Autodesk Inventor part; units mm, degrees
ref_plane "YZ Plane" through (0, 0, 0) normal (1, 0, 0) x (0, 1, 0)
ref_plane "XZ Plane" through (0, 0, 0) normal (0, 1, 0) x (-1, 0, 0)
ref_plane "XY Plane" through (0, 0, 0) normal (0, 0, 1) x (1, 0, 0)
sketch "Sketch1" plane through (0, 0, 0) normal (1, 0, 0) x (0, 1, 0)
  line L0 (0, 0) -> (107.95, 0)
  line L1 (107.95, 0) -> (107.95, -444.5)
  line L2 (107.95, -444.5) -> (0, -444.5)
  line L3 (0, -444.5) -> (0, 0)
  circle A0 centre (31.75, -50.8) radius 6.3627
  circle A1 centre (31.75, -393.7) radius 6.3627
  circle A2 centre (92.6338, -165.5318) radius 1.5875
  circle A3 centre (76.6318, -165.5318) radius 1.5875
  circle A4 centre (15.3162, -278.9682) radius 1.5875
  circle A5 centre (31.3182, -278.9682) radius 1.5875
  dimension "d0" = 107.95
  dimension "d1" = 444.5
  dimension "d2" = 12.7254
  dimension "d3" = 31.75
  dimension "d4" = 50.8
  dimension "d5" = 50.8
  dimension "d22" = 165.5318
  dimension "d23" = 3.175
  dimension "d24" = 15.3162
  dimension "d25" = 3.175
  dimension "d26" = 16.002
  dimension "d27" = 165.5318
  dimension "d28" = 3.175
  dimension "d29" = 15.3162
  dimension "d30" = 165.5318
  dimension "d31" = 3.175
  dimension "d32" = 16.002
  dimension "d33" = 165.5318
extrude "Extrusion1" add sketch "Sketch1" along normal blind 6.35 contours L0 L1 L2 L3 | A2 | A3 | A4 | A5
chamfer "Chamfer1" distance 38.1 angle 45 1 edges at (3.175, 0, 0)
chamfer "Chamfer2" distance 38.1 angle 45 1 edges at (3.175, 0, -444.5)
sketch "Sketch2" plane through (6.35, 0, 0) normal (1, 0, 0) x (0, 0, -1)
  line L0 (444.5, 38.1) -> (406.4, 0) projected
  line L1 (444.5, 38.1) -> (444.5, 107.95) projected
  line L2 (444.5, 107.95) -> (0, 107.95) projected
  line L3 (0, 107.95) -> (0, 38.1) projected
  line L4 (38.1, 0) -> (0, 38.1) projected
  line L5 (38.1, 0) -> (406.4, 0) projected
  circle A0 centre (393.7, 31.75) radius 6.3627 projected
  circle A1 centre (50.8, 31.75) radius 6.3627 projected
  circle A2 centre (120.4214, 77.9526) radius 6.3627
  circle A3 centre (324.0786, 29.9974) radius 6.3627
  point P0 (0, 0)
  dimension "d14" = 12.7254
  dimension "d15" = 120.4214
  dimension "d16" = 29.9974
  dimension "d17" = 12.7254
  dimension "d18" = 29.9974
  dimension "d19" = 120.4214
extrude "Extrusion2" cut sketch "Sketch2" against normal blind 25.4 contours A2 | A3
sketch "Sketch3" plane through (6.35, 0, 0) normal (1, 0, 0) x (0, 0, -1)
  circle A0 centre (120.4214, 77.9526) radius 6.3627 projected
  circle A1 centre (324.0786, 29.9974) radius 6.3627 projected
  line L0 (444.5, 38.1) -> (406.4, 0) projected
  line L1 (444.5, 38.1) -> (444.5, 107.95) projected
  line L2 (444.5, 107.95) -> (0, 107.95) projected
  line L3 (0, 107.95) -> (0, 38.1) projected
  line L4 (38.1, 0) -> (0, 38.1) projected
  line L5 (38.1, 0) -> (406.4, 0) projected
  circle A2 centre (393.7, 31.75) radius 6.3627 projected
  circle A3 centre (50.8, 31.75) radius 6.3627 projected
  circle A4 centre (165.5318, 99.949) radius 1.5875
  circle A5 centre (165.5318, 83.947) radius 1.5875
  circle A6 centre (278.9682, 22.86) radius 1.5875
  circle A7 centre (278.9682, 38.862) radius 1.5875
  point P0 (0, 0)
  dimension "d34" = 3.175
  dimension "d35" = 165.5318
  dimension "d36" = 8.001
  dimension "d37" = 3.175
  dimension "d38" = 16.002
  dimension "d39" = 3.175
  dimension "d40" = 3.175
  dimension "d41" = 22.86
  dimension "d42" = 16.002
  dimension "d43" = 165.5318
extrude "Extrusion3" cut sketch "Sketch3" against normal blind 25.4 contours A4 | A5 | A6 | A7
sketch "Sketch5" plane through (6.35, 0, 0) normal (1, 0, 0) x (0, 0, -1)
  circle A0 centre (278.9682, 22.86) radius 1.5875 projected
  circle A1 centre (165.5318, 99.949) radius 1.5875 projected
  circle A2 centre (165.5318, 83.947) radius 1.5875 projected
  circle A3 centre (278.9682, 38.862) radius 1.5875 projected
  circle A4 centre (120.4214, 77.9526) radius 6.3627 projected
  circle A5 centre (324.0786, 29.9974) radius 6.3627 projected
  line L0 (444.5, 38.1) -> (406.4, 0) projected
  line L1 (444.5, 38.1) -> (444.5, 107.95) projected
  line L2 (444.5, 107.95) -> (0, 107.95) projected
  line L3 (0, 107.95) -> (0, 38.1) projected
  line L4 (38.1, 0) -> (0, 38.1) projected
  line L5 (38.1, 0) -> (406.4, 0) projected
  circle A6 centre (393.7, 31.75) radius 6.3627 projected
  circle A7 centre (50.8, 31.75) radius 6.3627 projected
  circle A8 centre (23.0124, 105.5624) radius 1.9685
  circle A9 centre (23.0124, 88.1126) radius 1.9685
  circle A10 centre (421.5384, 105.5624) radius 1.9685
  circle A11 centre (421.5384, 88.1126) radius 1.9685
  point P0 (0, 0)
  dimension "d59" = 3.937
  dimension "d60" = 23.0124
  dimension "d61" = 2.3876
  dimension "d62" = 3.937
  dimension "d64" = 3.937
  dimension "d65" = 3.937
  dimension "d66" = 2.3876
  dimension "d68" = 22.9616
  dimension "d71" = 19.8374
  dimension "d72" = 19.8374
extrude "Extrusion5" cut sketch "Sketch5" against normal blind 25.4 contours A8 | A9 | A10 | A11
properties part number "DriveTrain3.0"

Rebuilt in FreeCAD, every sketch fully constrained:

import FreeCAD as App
import Part
import Sketcher
from FreeCAD import Vector
Q = App.Units.Quantity


def edges_at(feature, points):
    """Names of the edges that pass closest to the given points."""
    edges = feature.Shape.Edges
    near = lambda p: min(range(len(edges)), key=lambda i: edges[i].distToShape(Part.Vertex(*p))[0])
    return sorted({f"Edge{near(p) + 1}" for p in points})


def add_polygon(sketch, points):
    """Adds a closed chain of lines whose ends are joined by coincident constraints."""
    first, n = sketch.GeometryCount, len(points)
    for a, b in zip(points, points[1:] + points[:1]):
        sketch.addGeometry(Part.LineSegment(App.Vector(*a, 0), App.Vector(*b, 0)), False)
    for i in range(n):
        sketch.addConstraint(Sketcher.Constraint("Coincident", first + i, 2, first + (i + 1) % n, 1))

doc = App.newDocument("Part")
body = doc.addObject("PartDesign::Body", "Body")

# Sketch on YZ plane
sketch1 = body.newObject("Sketcher::SketchObject", "Sketch")
sketch1.AttachmentSupport = (doc.getObject("YZ_Plane"), [""])
sketch1.MapMode = "FlatFace"
add_polygon(sketch1, [(108, 0), (0, 0), (0, -444), (108, -444)])  # lines 0-3
sketch1.addGeometry(Part.Circle(Vector(32, -394, 0), Vector(0, 0, 1), 6), False)  # 4
sketch1.addGeometry(Part.Circle(Vector(32, -51, 0), Vector(0, 0, 1), 6), False)  # 5
sketch1.addConstraint([
    Sketcher.Constraint("Horizontal", 0),
    Sketcher.Constraint("Vertical", 1),
    Sketcher.Constraint("Horizontal", 2),
    Sketcher.Constraint("Vertical", 3),
    Sketcher.Constraint("Coincident", 0, 2, -1, 1),
    Sketcher.Constraint("Equal", 4, 5),
    Sketcher.Constraint("Vertical", 4, 3, 5, 3),
    Sketcher.Constraint("Diameter", 4, Q("0.501 in")),
    Sketcher.Constraint("DistanceY", 1, 2, 1, 1, Q("17.5 in")),
    Sketcher.Constraint("DistanceY", 5, 3, -1, 1, Q("2 in")),
    Sketcher.Constraint("DistanceY", 1, 2, 4, 3, Q("2 in")),
    Sketcher.Constraint("DistanceX", 0, 2, 0, 1, Q("4.25 in")),
    Sketcher.Constraint("DistanceX", -1, 1, 4, 3, Q("1.25 in")),
])
pad1 = body.newObject("PartDesign::Pad", "Pad")
pad1.Profile = sketch1
pad1.Length = Q("0.25 in")
doc.recompute()

chamfer = body.newObject("PartDesign::Chamfer", "Chamfer")
chamfer.Base = (pad1, edges_at(pad1, [(3.175, 0, 0)]))
chamfer.Size = Q("1.5 in")
doc.recompute()

chamfer2 = body.newObject("PartDesign::Chamfer", "Chamfer001")
chamfer2.Base = (chamfer, edges_at(chamfer, [(3.175, 0, -444.5)]))
chamfer2.Size = Q("1.5 in")

# Sketch on YZ plane
sketch2 = body.newObject("Sketcher::SketchObject", "Sketch001")
sketch2.AttachmentSupport = (doc.getObject("YZ_Plane"), [""])
sketch2.MapMode = "FlatFace"
sketch2.AttachmentOffset = App.Placement(Vector(0, 0, 0.25 * 25.4), App.Rotation())
sketch2.addGeometry([
    Part.Circle(Vector(78, -120, 0), Vector(0, 0, 1), 6),
    Part.Circle(Vector(30, -324, 0), Vector(0, 0, 1), 6),
], False)
sketch2.addConstraint([
    Sketcher.Constraint("Equal", 0, 1),
    Sketcher.Constraint("Diameter", 0, Q("0.501 in")),
    Sketcher.Constraint("DistanceY", 0, 3, -1, 1, Q("4.741 in")),
    Sketcher.Constraint("DistanceX", -1, 1, 1, 3, Q("1.181 in")),
    Sketcher.Constraint("DistanceX", -1, 1, 0, 3, Q("3.069 in")),
    Sketcher.Constraint("DistanceY", 1, 3, -1, 1, Q("12.759 in")),
])
pocket1 = body.newObject("PartDesign::Pocket", "Pocket")
pocket1.Profile = sketch2
pocket1.Length = Q("1 in")

# Sketch on YZ plane
sketch3 = body.newObject("Sketcher::SketchObject", "Sketch002")
sketch3.AttachmentSupport = (doc.getObject("YZ_Plane"), [""])
sketch3.MapMode = "FlatFace"
sketch3.AttachmentOffset = App.Placement(Vector(0, 0, 0.25 * 25.4), App.Rotation())
sketch3.addGeometry([
    Part.Circle(Vector(99.9, -165.5, 0), Vector(0, 0, 1), 1.6),
    Part.Circle(Vector(83.9, -165.5, 0), Vector(0, 0, 1), 1.6),
    Part.Circle(Vector(22.9, -279, 0), Vector(0, 0, 1), 1.6),
    Part.Circle(Vector(38.9, -279, 0), Vector(0, 0, 1), 1.6),
], False)
sketch3.addConstraint([
    Sketcher.Constraint("Equal", 0, 1),
    Sketcher.Constraint("Equal", 1, 2),
    Sketcher.Constraint("Equal", 2, 3),
    Sketcher.Constraint("Horizontal", 0, 3, 1, 3),
    Sketcher.Constraint("Horizontal", 2, 3, 3, 3),
    Sketcher.Constraint("Diameter", 0, Q("0.125 in")),
    Sketcher.Constraint("DistanceX", -1, 1, 2, 3, Q("0.9 in")),
    Sketcher.Constraint("DistanceX", 1, 3, 0, 3, Q("0.63 in")),
    Sketcher.Constraint("DistanceX", 2, 3, 3, 3, Q("0.63 in")),
    Sketcher.Constraint("DistanceY", 0, 3, -1, 1, Q("6.517 in")),
    Sketcher.Constraint("DistanceX", -1, 1, 0, 3, Q("3.935 in")),
    Sketcher.Constraint("DistanceY", 2, 3, -1, 1, Q("10.983 in")),
])
pocket2 = body.newObject("PartDesign::Pocket", "Pocket001")
pocket2.Profile = sketch3
pocket2.Length = Q("1 in")

# Sketch on YZ plane
sketch4 = body.newObject("Sketcher::SketchObject", "Sketch003")
sketch4.AttachmentSupport = (doc.getObject("YZ_Plane"), [""])
sketch4.MapMode = "FlatFace"
sketch4.AttachmentOffset = App.Placement(Vector(0, 0, 0.25 * 25.4), App.Rotation())
sketch4.addGeometry([
    Part.Circle(Vector(105.6, -23, 0), Vector(0, 0, 1), 2),
    Part.Circle(Vector(88.1, -23, 0), Vector(0, 0, 1), 2),
    Part.Circle(Vector(105.6, -421.5, 0), Vector(0, 0, 1), 2),
    Part.Circle(Vector(88.1, -421.5, 0), Vector(0, 0, 1), 2),
], False)
sketch4.addConstraint([
    Sketcher.Constraint("Equal", 0, 1),
    Sketcher.Constraint("Equal", 1, 2),
    Sketcher.Constraint("Equal", 2, 3),
    Sketcher.Constraint("Horizontal", 0, 3, 1, 3),
    Sketcher.Constraint("Horizontal", 2, 3, 3, 3),
    Sketcher.Constraint("Vertical", 0, 3, 2, 3),
    Sketcher.Constraint("Vertical", 1, 3, 3, 3),
    Sketcher.Constraint("Diameter", 0, Q("0.155 in")),
    Sketcher.Constraint("DistanceY", 0, 3, -1, 1, Q("0.906 in")),
    Sketcher.Constraint("DistanceY", 2, 3, 0, 3, Q("15.69 in")),
    Sketcher.Constraint("DistanceX", -1, 1, 0, 3, Q("4.156 in")),
    Sketcher.Constraint("DistanceX", -1, 1, 1, 3, Q("3.469 in")),
])
pocket3 = body.newObject("PartDesign::Pocket", "Pocket002")
pocket3.Profile = sketch4
pocket3.Length = Q("1 in")

doc.recompute()
